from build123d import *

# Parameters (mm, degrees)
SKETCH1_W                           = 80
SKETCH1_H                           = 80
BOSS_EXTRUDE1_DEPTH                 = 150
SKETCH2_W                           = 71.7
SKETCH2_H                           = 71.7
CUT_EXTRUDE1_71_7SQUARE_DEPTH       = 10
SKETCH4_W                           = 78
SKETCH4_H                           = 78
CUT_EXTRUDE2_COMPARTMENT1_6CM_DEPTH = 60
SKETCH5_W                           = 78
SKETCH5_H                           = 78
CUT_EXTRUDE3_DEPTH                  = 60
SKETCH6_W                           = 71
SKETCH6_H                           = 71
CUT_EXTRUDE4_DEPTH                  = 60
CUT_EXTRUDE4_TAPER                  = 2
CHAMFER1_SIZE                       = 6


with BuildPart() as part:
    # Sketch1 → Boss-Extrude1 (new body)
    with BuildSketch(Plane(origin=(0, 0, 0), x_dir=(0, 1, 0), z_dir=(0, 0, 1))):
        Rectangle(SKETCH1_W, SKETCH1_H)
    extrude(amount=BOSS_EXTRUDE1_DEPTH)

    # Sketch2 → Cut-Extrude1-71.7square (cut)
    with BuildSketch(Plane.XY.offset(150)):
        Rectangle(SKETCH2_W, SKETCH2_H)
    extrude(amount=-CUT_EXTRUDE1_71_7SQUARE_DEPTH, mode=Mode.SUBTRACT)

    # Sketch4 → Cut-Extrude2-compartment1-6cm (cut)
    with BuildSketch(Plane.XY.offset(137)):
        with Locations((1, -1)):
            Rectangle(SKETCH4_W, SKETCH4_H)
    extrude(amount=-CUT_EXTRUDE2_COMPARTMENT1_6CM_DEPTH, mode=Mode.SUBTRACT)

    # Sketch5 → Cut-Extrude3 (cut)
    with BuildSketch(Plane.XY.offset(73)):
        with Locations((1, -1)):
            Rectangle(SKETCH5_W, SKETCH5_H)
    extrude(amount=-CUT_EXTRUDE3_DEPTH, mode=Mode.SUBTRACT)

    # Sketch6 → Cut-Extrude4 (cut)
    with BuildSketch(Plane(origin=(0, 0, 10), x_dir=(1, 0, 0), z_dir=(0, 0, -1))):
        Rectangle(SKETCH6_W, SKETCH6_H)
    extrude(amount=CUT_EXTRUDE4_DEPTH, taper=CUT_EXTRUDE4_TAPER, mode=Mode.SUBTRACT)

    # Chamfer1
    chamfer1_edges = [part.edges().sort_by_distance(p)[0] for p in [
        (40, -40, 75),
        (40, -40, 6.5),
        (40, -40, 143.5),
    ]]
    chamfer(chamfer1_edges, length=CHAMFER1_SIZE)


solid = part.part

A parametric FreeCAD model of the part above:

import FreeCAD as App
import Part
import Sketcher
from FreeCAD import Vector


def edges_at(feature, points):
    """Names of the edges that pass closest to the given points."""
    edges = feature.Shape.Edges
    near = lambda p: min(range(len(edges)), key=lambda i: edges[i].distToShape(Part.Vertex(*p))[0])
    return sorted({f"Edge{near(p) + 1}" for p in points})

doc = App.newDocument("Part")
params = doc.addObject("Spreadsheet::Sheet", "Params")
for row, (alias, value) in enumerate([
    ("sketch1_width", "80 mm"),
    ("pad1_length", "150 mm"),
    ("sketch2_width", "71.7 mm"),
    ("pocket1_length", "10 mm"),
    ("sketch3_width", "78 mm"),
    ("pocket2_length", "60 mm"),
    ("sketch4_width", "78 mm"),
    ("pocket3_length", "60 mm"),
    ("sketch5_width", "71 mm"),
    ("pocket4_length", "60 mm"),
    ("pocket4_taper", "-2 deg"),
    ("chamfer_size", "6 mm"),
], start=1):
    params.set(f"A{row}", alias)
    params.set(f"B{row}", "=" + value)
    params.setAlias(f"B{row}", alias)

body = doc.addObject("PartDesign::Body", "Body")

sketch1 = doc.addObject("Sketcher::SketchObject", "Sketch")
body.addObject(sketch1)
sketch1.AttachmentSupport = (doc.XY_Plane, [""])
sketch1.MapMode = "FlatFace"
sketch1.addGeometry([
    Part.LineSegment(Vector(-40, -40, 0), Vector(40, -40, 0)),
    Part.LineSegment(Vector(40, -40, 0), Vector(40, 40, 0)),
    Part.LineSegment(Vector(40, 40, 0), Vector(-40, 40, 0)),
    Part.LineSegment(Vector(-40, 40, 0), Vector(-40, -40, 0)),
], False)
sketch1.addConstraint([
    Sketcher.Constraint("Coincident", 0, 2, 1, 1),
    Sketcher.Constraint("Coincident", 1, 2, 2, 1),
    Sketcher.Constraint("Coincident", 2, 2, 3, 1),
    Sketcher.Constraint("Coincident", 3, 2, 0, 1),
    Sketcher.Constraint("Horizontal", 0),
    Sketcher.Constraint("Vertical", 1),
    Sketcher.Constraint("Horizontal", 2),
    Sketcher.Constraint("Vertical", 3),
    Sketcher.Constraint("Symmetric", 0, 2, 2, 2, -1, 1),
    Sketcher.Constraint("Equal", 2, 1),
    Sketcher.Constraint("DistanceX", 0, 1, 0, 2, 80.0),
])
sketch1.setExpression("Constraints[10]", "Params.sketch1_width")
pad1 = doc.addObject("PartDesign::Pad", "Pad")
body.addObject(pad1)
pad1.Profile = sketch1
pad1.setExpression("Length", "Params.pad1_length")

sketch2 = doc.addObject("Sketcher::SketchObject", "Sketch001")
body.addObject(sketch2)
sketch2.AttachmentSupport = (doc.XY_Plane, [""])
sketch2.MapMode = "FlatFace"
sketch2.AttachmentOffset = App.Placement(Vector(0, 0, 150), App.Rotation())
sketch2.addGeometry([
    Part.LineSegment(Vector(-36, 36, 0), Vector(-36, -36, 0)),
    Part.LineSegment(Vector(-36, -36, 0), Vector(36, -36, 0)),
    Part.LineSegment(Vector(36, -36, 0), Vector(36, 36, 0)),
    Part.LineSegment(Vector(36, 36, 0), Vector(-36, 36, 0)),
], False)
sketch2.addConstraint([
    Sketcher.Constraint("Coincident", 0, 2, 1, 1),
    Sketcher.Constraint("Coincident", 1, 2, 2, 1),
    Sketcher.Constraint("Coincident", 2, 2, 3, 1),
    Sketcher.Constraint("Coincident", 3, 2, 0, 1),
    Sketcher.Constraint("Vertical", 0),
    Sketcher.Constraint("Horizontal", 1),
    Sketcher.Constraint("Vertical", 2),
    Sketcher.Constraint("Horizontal", 3),
    Sketcher.Constraint("Symmetric", 0, 2, 2, 2, -1, 1),
    Sketcher.Constraint("Equal", 3, 0),
    Sketcher.Constraint("DistanceX", 1, 1, 1, 2, 71.7),
])
sketch2.setExpression("Constraints[10]", "Params.sketch2_width")
pocket1 = doc.addObject("PartDesign::Pocket", "Pocket")
body.addObject(pocket1)
pocket1.Profile = sketch2
pocket1.setExpression("Length", "Params.pocket1_length")

sketch3 = doc.addObject("Sketcher::SketchObject", "Sketch002")
body.addObject(sketch3)
sketch3.AttachmentSupport = (doc.XY_Plane, [""])
sketch3.MapMode = "FlatFace"
sketch3.AttachmentOffset = App.Placement(Vector(0, 0, 137), App.Rotation())
sketch3.addGeometry([
    Part.LineSegment(Vector(-38, 38, 0), Vector(-38, -40, 0)),
    Part.LineSegment(Vector(-38, -40, 0), Vector(40, -40, 0)),
    Part.LineSegment(Vector(40, -40, 0), Vector(40, 38, 0)),
    Part.LineSegment(Vector(40, 38, 0), Vector(-38, 38, 0)),
], False)
sketch3.addConstraint([
    Sketcher.Constraint("Coincident", 0, 2, 1, 1),
    Sketcher.Constraint("Coincident", 1, 2, 2, 1),
    Sketcher.Constraint("Coincident", 2, 2, 3, 1),
    Sketcher.Constraint("Coincident", 3, 2, 0, 1),
    Sketcher.Constraint("Vertical", 0),
    Sketcher.Constraint("Horizontal", 1),
    Sketcher.Constraint("Vertical", 2),
    Sketcher.Constraint("Horizontal", 3),
    Sketcher.Constraint("Equal", 3, 0),
    Sketcher.Constraint("DistanceX", 1, 1, 1, 2, 78.0),
    Sketcher.Constraint("DistanceX", 0, 2, -1, 1, 38.0),
    Sketcher.Constraint("DistanceY", 0, 2, -1, 1, 40.0),
])
sketch3.setExpression("Constraints[9]", "Params.sketch3_width")
pocket2 = doc.addObject("PartDesign::Pocket", "Pocket001")
body.addObject(pocket2)
pocket2.Profile = sketch3
pocket2.setExpression("Length", "Params.pocket2_length")

sketch4 = doc.addObject("Sketcher::SketchObject", "Sketch003")
body.addObject(sketch4)
sketch4.AttachmentSupport = (doc.XY_Plane, [""])
sketch4.MapMode = "FlatFace"
sketch4.AttachmentOffset = App.Placement(Vector(0, 0, 73), App.Rotation())
sketch4.addGeometry([
    Part.LineSegment(Vector(-38, 38, 0), Vector(-38, -40, 0)),
    Part.LineSegment(Vector(-38, -40, 0), Vector(40, -40, 0)),
    Part.LineSegment(Vector(40, -40, 0), Vector(40, 38, 0)),
    Part.LineSegment(Vector(40, 38, 0), Vector(-38, 38, 0)),
], False)
sketch4.addConstraint([
    Sketcher.Constraint("Coincident", 0, 2, 1, 1),
    Sketcher.Constraint("Coincident", 1, 2, 2, 1),
    Sketcher.Constraint("Coincident", 2, 2, 3, 1),
    Sketcher.Constraint("Coincident", 3, 2, 0, 1),
    Sketcher.Constraint("Vertical", 0),
    Sketcher.Constraint("Horizontal", 1),
    Sketcher.Constraint("Vertical", 2),
    Sketcher.Constraint("Horizontal", 3),
    Sketcher.Constraint("Equal", 3, 0),
    Sketcher.Constraint("DistanceX", 1, 1, 1, 2, 78.0),
    Sketcher.Constraint("DistanceX", 0, 2, -1, 1, 38.0),
    Sketcher.Constraint("DistanceY", 0, 2, -1, 1, 40.0),
])
sketch4.setExpression("Constraints[9]", "Params.sketch4_width")
pocket3 = doc.addObject("PartDesign::Pocket", "Pocket002")
body.addObject(pocket3)
pocket3.Profile = sketch4
pocket3.setExpression("Length", "Params.pocket3_length")

sketch5 = doc.addObject("Sketcher::SketchObject", "Sketch004")
body.addObject(sketch5)
sketch5.AttachmentSupport = (doc.XY_Plane, [""])
sketch5.MapMode = "FlatFace"
sketch5.AttachmentOffset = App.Placement(Vector(0, 0, 10), App.Rotation())
sketch5.addGeometry([
    Part.LineSegment(Vector(-36, -36, 0), Vector(-36, 36, 0)),
    Part.LineSegment(Vector(-36, 36, 0), Vector(36, 36, 0)),
    Part.LineSegment(Vector(36, 36, 0), Vector(36, -36, 0)),
    Part.LineSegment(Vector(36, -36, 0), Vector(-36, -36, 0)),
], False)
sketch5.addConstraint([
    Sketcher.Constraint("Coincident", 0, 2, 1, 1),
    Sketcher.Constraint("Coincident", 1, 2, 2, 1),
    Sketcher.Constraint("Coincident", 2, 2, 3, 1),
    Sketcher.Constraint("Coincident", 3, 2, 0, 1),
    Sketcher.Constraint("Vertical", 0),
    Sketcher.Constraint("Horizontal", 1),
    Sketcher.Constraint("Vertical", 2),
    Sketcher.Constraint("Horizontal", 3),
    Sketcher.Constraint("Symmetric", 0, 2, 2, 2, -1, 1),
    Sketcher.Constraint("Equal", 3, 0),
    Sketcher.Constraint("DistanceX", 1, 1, 1, 2, 71.0),
])
sketch5.setExpression("Constraints[10]", "Params.sketch5_width")
pocket4 = doc.addObject("PartDesign::Pocket", "Pocket003")
body.addObject(pocket4)
pocket4.Profile = sketch5
pocket4.setExpression("Length", "Params.pocket4_length")
pocket4.setExpression("TaperAngle", "Params.pocket4_taper")
doc.recompute()

chamfer = doc.addObject("PartDesign::Chamfer", "Chamfer")
body.addObject(chamfer)
chamfer.Base = (pocket4, edges_at(pocket4, [(40, -40, 75), (40, -40, 6.5), (40, -40, 143.5)]))
chamfer.setExpression("Size", "Params.chamfer_size")

doc.recompute()
